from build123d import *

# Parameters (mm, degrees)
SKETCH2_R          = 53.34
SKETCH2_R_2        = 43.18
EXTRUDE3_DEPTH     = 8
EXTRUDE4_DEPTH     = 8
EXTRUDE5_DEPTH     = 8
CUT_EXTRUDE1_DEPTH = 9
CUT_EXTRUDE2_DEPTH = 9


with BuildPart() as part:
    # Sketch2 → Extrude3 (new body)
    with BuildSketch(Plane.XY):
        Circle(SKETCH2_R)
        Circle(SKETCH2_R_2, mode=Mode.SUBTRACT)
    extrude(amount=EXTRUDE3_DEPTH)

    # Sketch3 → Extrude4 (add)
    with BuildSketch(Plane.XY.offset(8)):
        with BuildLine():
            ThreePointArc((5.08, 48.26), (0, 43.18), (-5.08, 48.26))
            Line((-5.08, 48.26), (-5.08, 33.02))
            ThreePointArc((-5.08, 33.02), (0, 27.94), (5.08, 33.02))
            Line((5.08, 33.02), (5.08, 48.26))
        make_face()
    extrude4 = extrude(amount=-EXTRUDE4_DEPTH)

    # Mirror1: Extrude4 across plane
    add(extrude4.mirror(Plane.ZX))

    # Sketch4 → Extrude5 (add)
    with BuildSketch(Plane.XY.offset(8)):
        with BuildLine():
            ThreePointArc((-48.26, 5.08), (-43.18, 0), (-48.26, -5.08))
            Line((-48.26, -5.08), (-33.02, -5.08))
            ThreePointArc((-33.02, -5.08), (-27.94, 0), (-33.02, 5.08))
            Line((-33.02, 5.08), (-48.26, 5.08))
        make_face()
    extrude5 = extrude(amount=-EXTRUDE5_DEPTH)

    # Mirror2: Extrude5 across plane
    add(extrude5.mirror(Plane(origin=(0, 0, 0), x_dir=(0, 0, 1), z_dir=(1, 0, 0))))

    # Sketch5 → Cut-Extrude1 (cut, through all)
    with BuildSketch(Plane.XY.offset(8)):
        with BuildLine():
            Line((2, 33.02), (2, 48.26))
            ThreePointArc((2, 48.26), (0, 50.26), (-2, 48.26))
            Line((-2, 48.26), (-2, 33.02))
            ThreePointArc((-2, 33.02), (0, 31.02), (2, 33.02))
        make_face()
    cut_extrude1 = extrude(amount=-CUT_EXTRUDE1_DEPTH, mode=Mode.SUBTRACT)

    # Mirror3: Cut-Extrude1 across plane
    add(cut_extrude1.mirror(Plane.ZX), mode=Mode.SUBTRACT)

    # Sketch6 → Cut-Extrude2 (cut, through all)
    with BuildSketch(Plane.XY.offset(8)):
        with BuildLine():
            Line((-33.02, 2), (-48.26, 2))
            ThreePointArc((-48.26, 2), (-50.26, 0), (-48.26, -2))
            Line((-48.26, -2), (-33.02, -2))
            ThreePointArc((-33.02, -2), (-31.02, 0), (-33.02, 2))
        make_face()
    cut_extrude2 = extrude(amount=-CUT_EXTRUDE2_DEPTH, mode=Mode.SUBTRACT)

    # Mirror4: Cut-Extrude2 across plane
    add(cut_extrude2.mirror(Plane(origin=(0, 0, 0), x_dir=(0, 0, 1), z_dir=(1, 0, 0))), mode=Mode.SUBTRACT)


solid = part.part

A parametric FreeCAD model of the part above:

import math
import FreeCAD as App
import Part
import Sketcher

V = App.Vector
Q = App.Units.Quantity

doc = App.newDocument("Part")
body = doc.addObject("PartDesign::Body", "Body")

# Sketch on XY plane
sketch1 = body.newObject("Sketcher::SketchObject", "Sketch")
sketch1.AttachmentSupport = (doc.getObject("XY_Plane"), [""])
sketch1.MapMode = "FlatFace"
sketch1.addGeometry(Part.Circle(V(0, 0, 0), V(0, 0, 1), 53), False)
sketch1.addGeometry(Part.Circle(V(0, 0, 0), V(0, 0, 1), 43), False)
sketch1.addConstraint(Sketcher.Constraint("Coincident", 0, 3, -1, 1))
sketch1.addConstraint(Sketcher.Constraint("Coincident", 1, 3, -1, 1))
sketch1.addConstraint(Sketcher.Constraint("Diameter", 0, Q("4.2 in")))
sketch1.addConstraint(Sketcher.Constraint("Diameter", 1, Q("3.4 in")))
pad1 = body.newObject("PartDesign::Pad", "Pad")
pad1.Profile = sketch1
pad1.Length = 8

# Sketch on XY plane
sketch2 = body.newObject("Sketcher::SketchObject", "Sketch001")
sketch2.AttachmentSupport = (doc.getObject("XY_Plane"), [""])
sketch2.MapMode = "FlatFace"
sketch2.AttachmentOffset = App.Placement(V(0, 0, 8), App.Rotation())
sketch2.addGeometry(Part.ArcOfCircle(Part.Circle(V(0, 48, 0), V(0, 0, 1), 5), math.radians(180), math.radians(360)), False)
sketch2.addGeometry(Part.LineSegment(V(-5, 48, 0), V(-5, 33, 0)), False)
sketch2.addGeometry(Part.ArcOfCircle(Part.Circle(V(0, 33, 0), V(0, 0, 1), 5), math.radians(180), math.radians(360)), False)
sketch2.addGeometry(Part.LineSegment(V(5, 33, 0), V(5, 48, 0)), False)
sketch2.addConstraint(Sketcher.Constraint("Tangent", 0, 1, 1, 1))
sketch2.addConstraint(Sketcher.Constraint("Tangent", 1, 2, 2, 1))
sketch2.addConstraint(Sketcher.Constraint("Tangent", 2, 2, 3, 1))
sketch2.addConstraint(Sketcher.Constraint("Tangent", 3, 2, 0, 2))
sketch2.addConstraint(Sketcher.Constraint("Vertical", 1))
sketch2.addConstraint(Sketcher.Constraint("Vertical", 3))
sketch2.addConstraint(Sketcher.Constraint("PointOnObject", 0, 3, -2))
sketch2.addConstraint(Sketcher.Constraint("Radius", 0, Q("0.2 in")))
sketch2.addConstraint(Sketcher.Constraint("DistanceY", 1, 2, 1, 1, Q("0.6 in")))
sketch2.addConstraint(Sketcher.Constraint("DistanceY", -1, 1, 0, 3, Q("1.9 in")))
pad2 = body.newObject("PartDesign::Pad", "Pad001")
pad2.Profile = sketch2
pad2.Length = 8
pad2.Reversed = True
doc.recompute()

mirrored = body.newObject("PartDesign::Mirrored", "Mirrored")
mirrored.Originals = [pad2]
mirrored.MirrorPlane = (doc.getObject("XZ_Plane"), [""])
body.Tip = mirrored

# Sketch on XY plane
sketch3 = body.newObject("Sketcher::SketchObject", "Sketch002")
sketch3.AttachmentSupport = (doc.getObject("XY_Plane"), [""])
sketch3.MapMode = "FlatFace"
sketch3.AttachmentOffset = App.Placement(V(0, 0, 8), App.Rotation())
sketch3.addGeometry(Part.ArcOfCircle(Part.Circle(V(-48, 0, 0), V(0, 0, 1), 5), math.radians(-90), math.radians(90)), False)
sketch3.addGeometry(Part.LineSegment(V(-48, -5, 0), V(-33, -5, 0)), False)
sketch3.addGeometry(Part.ArcOfCircle(Part.Circle(V(-33, 0, 0), V(0, 0, 1), 5), math.radians(-90), math.radians(90)), False)
sketch3.addGeometry(Part.LineSegment(V(-33, 5, 0), V(-48, 5, 0)), False)
sketch3.addConstraint(Sketcher.Constraint("Tangent", 0, 1, 1, 1))
sketch3.addConstraint(Sketcher.Constraint("Tangent", 1, 2, 2, 1))
sketch3.addConstraint(Sketcher.Constraint("Tangent", 2, 2, 3, 1))
sketch3.addConstraint(Sketcher.Constraint("Tangent", 3, 2, 0, 2))
sketch3.addConstraint(Sketcher.Constraint("Horizontal", 1))
sketch3.addConstraint(Sketcher.Constraint("Horizontal", 3))
sketch3.addConstraint(Sketcher.Constraint("PointOnObject", 0, 3, -1))
sketch3.addConstraint(Sketcher.Constraint("Radius", 0, Q("0.2 in")))
sketch3.addConstraint(Sketcher.Constraint("DistanceX", 1, 1, 1, 2, Q("0.6 in")))
sketch3.addConstraint(Sketcher.Constraint("DistanceX", 0, 3, -1, 1, Q("1.9 in")))
pad3 = body.newObject("PartDesign::Pad", "Pad002")
pad3.Profile = sketch3
pad3.Length = 8
pad3.Reversed = True
doc.recompute()

mirrored2 = body.newObject("PartDesign::Mirrored", "Mirrored001")
mirrored2.Originals = [pad3]
mirrored2.MirrorPlane = (doc.getObject("YZ_Plane"), [""])
body.Tip = mirrored2

# Sketch on XY plane
sketch4 = body.newObject("Sketcher::SketchObject", "Sketch003")
sketch4.AttachmentSupport = (doc.getObject("XY_Plane"), [""])
sketch4.MapMode = "FlatFace"
sketch4.AttachmentOffset = App.Placement(V(0, 0, 8), App.Rotation())
sketch4.addGeometry(Part.LineSegment(V(2, 33, 0), V(2, 48.3, 0)), False)
sketch4.addGeometry(Part.ArcOfCircle(Part.Circle(V(0, 48.3, 0), V(0, 0, 1), 2), math.radians(0), math.radians(180)), False)
sketch4.addGeometry(Part.LineSegment(V(-2, 48.3, 0), V(-2, 33, 0)), False)
sketch4.addGeometry(Part.ArcOfCircle(Part.Circle(V(0, 33, 0), V(0, 0, 1), 2), math.radians(180), math.radians(360)), False)
sketch4.addConstraint(Sketcher.Constraint("Tangent", 0, 2, 1, 1))
sketch4.addConstraint(Sketcher.Constraint("Tangent", 1, 2, 2, 1))
sketch4.addConstraint(Sketcher.Constraint("Tangent", 2, 2, 3, 1))
sketch4.addConstraint(Sketcher.Constraint("Tangent", 3, 2, 0, 1))
sketch4.addConstraint(Sketcher.Constraint("Vertical", 0))
sketch4.addConstraint(Sketcher.Constraint("Vertical", 2))
sketch4.addConstraint(Sketcher.Constraint("PointOnObject", 1, 3, -2))
sketch4.addConstraint(Sketcher.Constraint("DistanceY", 0, 1, 0, 2, Q("0.6 in")))
sketch4.addConstraint(Sketcher.Constraint("DistanceY", -1, 1, 1, 3, Q("1.9 in")))
sketch4.addConstraint(Sketcher.Constraint("Radius", 1, 2.0))
pocket1 = body.newObject("PartDesign::Pocket", "Pocket")
pocket1.Profile = sketch4
pocket1.Type = "ThroughAll"
doc.recompute()

mirrored3 = body.newObject("PartDesign::Mirrored", "Mirrored002")
mirrored3.Originals = [pocket1]
mirrored3.MirrorPlane = (doc.getObject("XZ_Plane"), [""])
body.Tip = mirrored3

# Sketch on XY plane
sketch5 = body.newObject("Sketcher::SketchObject", "Sketch004")
sketch5.AttachmentSupport = (doc.getObject("XY_Plane"), [""])
sketch5.MapMode = "FlatFace"
sketch5.AttachmentOffset = App.Placement(V(0, 0, 8), App.Rotation())
sketch5.addGeometry(Part.LineSegment(V(-33, 2, 0), V(-48.3, 2, 0)), False)
sketch5.addGeometry(Part.ArcOfCircle(Part.Circle(V(-48.3, 0, 0), V(0, 0, 1), 2), math.radians(90), math.radians(270)), False)
sketch5.addGeometry(Part.LineSegment(V(-48.3, -2, 0), V(-33, -2, 0)), False)
sketch5.addGeometry(Part.ArcOfCircle(Part.Circle(V(-33, 0, 0), V(0, 0, 1), 2), math.radians(-90), math.radians(90)), False)
sketch5.addConstraint(Sketcher.Constraint("Tangent", 0, 2, 1, 1))
sketch5.addConstraint(Sketcher.Constraint("Tangent", 1, 2, 2, 1))
sketch5.addConstraint(Sketcher.Constraint("Tangent", 2, 2, 3, 1))
sketch5.addConstraint(Sketcher.Constraint("Tangent", 3, 2, 0, 1))
sketch5.addConstraint(Sketcher.Constraint("Horizontal", 0))
sketch5.addConstraint(Sketcher.Constraint("Horizontal", 2))
sketch5.addConstraint(Sketcher.Constraint("PointOnObject", 1, 3, -1))
sketch5.addConstraint(Sketcher.Constraint("DistanceX", 0, 2, 0, 1, Q("0.6 in")))
sketch5.addConstraint(Sketcher.Constraint("DistanceX", 1, 3, -1, 1, Q("1.9 in")))
sketch5.addConstraint(Sketcher.Constraint("Radius", 1, 2.0))
pocket2 = body.newObject("PartDesign::Pocket", "Pocket001")
pocket2.Profile = sketch5
pocket2.Type = "ThroughAll"
doc.recompute()

mirrored4 = body.newObject("PartDesign::Mirrored", "Mirrored003")
mirrored4.Originals = [pocket2]
mirrored4.MirrorPlane = (doc.getObject("YZ_Plane"), [""])
body.Tip = mirrored4

doc.recompute()
